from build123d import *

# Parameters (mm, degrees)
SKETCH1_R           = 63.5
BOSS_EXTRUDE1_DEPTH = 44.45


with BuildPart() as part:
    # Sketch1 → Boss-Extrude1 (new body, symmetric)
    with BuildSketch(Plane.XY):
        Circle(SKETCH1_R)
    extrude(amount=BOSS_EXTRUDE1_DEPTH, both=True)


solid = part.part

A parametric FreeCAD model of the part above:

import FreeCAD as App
import Part
import Sketcher

V = App.Vector
Q = App.Units.Quantity

doc = App.newDocument("Part")
body = doc.addObject("PartDesign::Body", "Body")

sketch1 = doc.addObject("Sketcher::SketchObject", "Sketch")
body.addObject(sketch1)
sketch1.AttachmentSupport = (doc.XY_Plane, [""])
sketch1.MapMode = "FlatFace"
sketch1.addGeometry(Part.Circle(V(0, 0, 0), V(0, 0, 1), 64), False)
sketch1.addConstraint(Sketcher.Constraint("Coincident", 0, 3, -1, 1))
sketch1.addConstraint(Sketcher.Constraint("Diameter", 0, Q("5 in")))
pad1 = doc.addObject("PartDesign::Pad", "Pad")
body.addObject(pad1)
pad1.Profile = sketch1
pad1.Length = Q("3.5 in")
pad1.Midplane = True

doc.recompute()
